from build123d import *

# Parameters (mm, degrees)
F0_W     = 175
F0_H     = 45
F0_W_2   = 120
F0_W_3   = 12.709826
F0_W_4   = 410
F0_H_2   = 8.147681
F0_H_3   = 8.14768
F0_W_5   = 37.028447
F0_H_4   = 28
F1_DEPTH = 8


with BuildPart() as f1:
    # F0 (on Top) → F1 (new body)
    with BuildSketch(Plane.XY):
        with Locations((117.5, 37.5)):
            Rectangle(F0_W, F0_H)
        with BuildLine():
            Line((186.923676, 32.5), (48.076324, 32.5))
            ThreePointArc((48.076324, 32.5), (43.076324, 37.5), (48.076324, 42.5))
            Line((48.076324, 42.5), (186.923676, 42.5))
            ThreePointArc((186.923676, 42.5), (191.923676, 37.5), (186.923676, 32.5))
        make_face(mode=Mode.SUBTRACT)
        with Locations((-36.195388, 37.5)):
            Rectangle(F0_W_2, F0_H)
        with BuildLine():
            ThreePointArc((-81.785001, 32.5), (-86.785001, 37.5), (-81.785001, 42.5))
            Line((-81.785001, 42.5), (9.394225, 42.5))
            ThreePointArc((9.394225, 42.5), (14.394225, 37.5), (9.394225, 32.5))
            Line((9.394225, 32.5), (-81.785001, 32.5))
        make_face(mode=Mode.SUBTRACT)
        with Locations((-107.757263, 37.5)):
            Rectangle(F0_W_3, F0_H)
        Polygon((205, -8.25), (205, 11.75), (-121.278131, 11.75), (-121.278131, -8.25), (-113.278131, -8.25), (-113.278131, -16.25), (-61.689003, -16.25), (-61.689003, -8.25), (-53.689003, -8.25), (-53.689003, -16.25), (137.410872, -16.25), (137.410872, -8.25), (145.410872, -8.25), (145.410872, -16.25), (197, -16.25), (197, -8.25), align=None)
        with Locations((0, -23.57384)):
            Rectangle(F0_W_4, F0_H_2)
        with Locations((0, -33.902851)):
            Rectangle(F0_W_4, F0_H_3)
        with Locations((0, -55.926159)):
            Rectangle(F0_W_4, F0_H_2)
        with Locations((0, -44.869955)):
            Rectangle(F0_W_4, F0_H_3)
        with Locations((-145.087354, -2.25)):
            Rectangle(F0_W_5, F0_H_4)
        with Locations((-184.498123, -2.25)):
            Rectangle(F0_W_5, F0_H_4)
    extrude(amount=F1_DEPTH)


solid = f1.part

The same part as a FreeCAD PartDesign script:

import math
import FreeCAD as App
import Part
import Sketcher
from FreeCAD import Vector

doc = App.newDocument("Part")
body = doc.addObject("PartDesign::Body", "Body")
body.AllowCompound = True

sketch1 = doc.addObject("Sketcher::SketchObject", "Sketch")
body.addObject(sketch1)
sketch1.AttachmentSupport = (doc.XY_Plane, [""])
sketch1.MapMode = "FlatFace"
sketch1.addGeometry([
    Part.LineSegment(Vector(30, 60, 0), Vector(30, 15, 0)),
    Part.LineSegment(Vector(30, 15, 0), Vector(205, 15, 0)),
    Part.LineSegment(Vector(205, 15, 0), Vector(205, 60, 0)),
    Part.LineSegment(Vector(205, 60, 0), Vector(30, 60, 0)),
    Part.ArcOfCircle(Part.Circle(Vector(186.923676, 37.5, 0), Vector(0, 0, 1), 5), math.radians(-90), math.radians(90)),
    Part.LineSegment(Vector(186.923676, 32.5, 0), Vector(48.076324, 32.5, 0)),
    Part.ArcOfCircle(Part.Circle(Vector(48.076324, 37.5, 0), Vector(0, 0, 1), 5), math.radians(90), math.radians(270)),
    Part.LineSegment(Vector(48.076324, 42.5, 0), Vector(186.923676, 42.5, 0)),
    Part.LineSegment(Vector(-96.195388, 60, 0), Vector(-96.195388, 15, 0)),
    Part.LineSegment(Vector(-96.195388, 15, 0), Vector(23.804612, 15, 0)),
    Part.LineSegment(Vector(23.804612, 15, 0), Vector(23.804612, 60, 0)),
    Part.LineSegment(Vector(23.804612, 60, 0), Vector(-96.195388, 60, 0)),
    Part.LineSegment(Vector(9.394225, 32.5, 0), Vector(-81.785001, 32.5, 0)),
    Part.ArcOfCircle(Part.Circle(Vector(-81.785001, 37.5, 0), Vector(0, 0, 1), 5), math.radians(90), math.radians(270)),
    Part.LineSegment(Vector(-81.785001, 42.5, 0), Vector(9.394225, 42.5, 0)),
    Part.ArcOfCircle(Part.Circle(Vector(9.394225, 37.5, 0), Vector(0, 0, 1), 5), math.radians(-90), math.radians(90)),
    Part.LineSegment(Vector(-114.112176, 60, 0), Vector(-114.112176, 15, 0)),
    Part.LineSegment(Vector(-114.112176, 15, 0), Vector(-101.40235, 15, 0)),
    Part.LineSegment(Vector(-101.40235, 15, 0), Vector(-101.40235, 60, 0)),
    Part.LineSegment(Vector(-101.40235, 60, 0), Vector(-114.112176, 60, 0)),
    Part.LineSegment(Vector(205, -8.25, 0), Vector(205, 11.75, 0)),
    Part.LineSegment(Vector(205, 11.75, 0), Vector(-121.278131, 11.75, 0)),
    Part.LineSegment(Vector(-121.278131, 11.75, 0), Vector(-121.278131, -8.25, 0)),
    Part.LineSegment(Vector(-121.278131, -8.25, 0), Vector(-113.278131, -8.25, 0)),
    Part.LineSegment(Vector(-113.278131, -8.25, 0), Vector(-113.278131, -16.25, 0)),
    Part.LineSegment(Vector(-113.278131, -16.25, 0), Vector(-61.689003, -16.25, 0)),
    Part.LineSegment(Vector(-61.689003, -16.25, 0), Vector(-61.689003, -8.25, 0)),
    Part.LineSegment(Vector(-61.689003, -8.25, 0), Vector(-53.689003, -8.25, 0)),
    Part.LineSegment(Vector(-53.689003, -8.25, 0), Vector(-53.689003, -16.25, 0)),
    Part.LineSegment(Vector(-53.689003, -16.25, 0), Vector(137.410872, -16.25, 0)),
    Part.LineSegment(Vector(137.410872, -16.25, 0), Vector(137.410872, -8.25, 0)),
    Part.LineSegment(Vector(137.410872, -8.25, 0), Vector(145.410872, -8.25, 0)),
    Part.LineSegment(Vector(145.410872, -8.25, 0), Vector(145.410872, -16.25, 0)),
    Part.LineSegment(Vector(145.410872, -16.25, 0), Vector(197, -16.25, 0)),
    Part.LineSegment(Vector(197, -16.25, 0), Vector(197, -8.25, 0)),
    Part.LineSegment(Vector(197, -8.25, 0), Vector(205, -8.25, 0)),
    Part.LineSegment(Vector(-205, -19.5, 0), Vector(-205, -27.64768, 0)),
    Part.LineSegment(Vector(-205, -27.64768, 0), Vector(205, -27.64768, 0)),
    Part.LineSegment(Vector(205, -27.64768, 0), Vector(205, -19.5, 0)),
    Part.LineSegment(Vector(205, -19.5, 0), Vector(-205, -19.5, 0)),
    Part.LineSegment(Vector(-205, -29.829011, 0), Vector(-205, -37.976691, 0)),
    Part.LineSegment(Vector(-205, -37.976691, 0), Vector(205, -37.976691, 0)),
    Part.LineSegment(Vector(205, -37.976691, 0), Vector(205, -29.829011, 0)),
    Part.LineSegment(Vector(205, -29.829011, 0), Vector(-205, -29.829011, 0)),
    Part.LineSegment(Vector(-205, -51.852319, 0), Vector(-205, -60, 0)),
    Part.LineSegment(Vector(-205, -60, 0), Vector(205, -60, 0)),
    Part.LineSegment(Vector(205, -60, 0), Vector(205, -51.852319, 0)),
    Part.LineSegment(Vector(205, -51.852319, 0), Vector(-205, -51.852319, 0)),
    Part.LineSegment(Vector(-205, -40.796115, 0), Vector(-205, -48.943795, 0)),
    Part.LineSegment(Vector(-205, -48.943795, 0), Vector(205, -48.943795, 0)),
    Part.LineSegment(Vector(205, -48.943795, 0), Vector(205, -40.796115, 0)),
    Part.LineSegment(Vector(205, -40.796115, 0), Vector(-205, -40.796115, 0)),
    Part.LineSegment(Vector(-163.601577, 11.75, 0), Vector(-163.601577, -16.25, 0)),
    Part.LineSegment(Vector(-163.601577, -16.25, 0), Vector(-126.573131, -16.25, 0)),
    Part.LineSegment(Vector(-126.573131, -16.25, 0), Vector(-126.573131, 11.75, 0)),
    Part.LineSegment(Vector(-126.573131, 11.75, 0), Vector(-163.601577, 11.75, 0)),
    Part.LineSegment(Vector(-203.012347, 11.75, 0), Vector(-203.012347, -16.25, 0)),
    Part.LineSegment(Vector(-203.012347, -16.25, 0), Vector(-165.9839, -16.25, 0)),
    Part.LineSegment(Vector(-165.9839, -16.25, 0), Vector(-165.9839, 11.75, 0)),
    Part.LineSegment(Vector(-165.9839, 11.75, 0), Vector(-203.012347, 11.75, 0)),
], False)
sketch1.addConstraint([
    Sketcher.Constraint("Coincident", 0, 2, 1, 1),
    Sketcher.Constraint("Coincident", 1, 2, 2, 1),
    Sketcher.Constraint("Coincident", 2, 2, 3, 1),
    Sketcher.Constraint("Coincident", 3, 2, 0, 1),
    Sketcher.Constraint("Tangent", 4, 1, 5, 1),
    Sketcher.Constraint("Tangent", 5, 2, 6, 2),
    Sketcher.Constraint("Tangent", 6, 1, 7, 1),
    Sketcher.Constraint("Tangent", 7, 2, 4, 2),
    Sketcher.Constraint("Coincident", 8, 2, 9, 1),
    Sketcher.Constraint("Coincident", 9, 2, 10, 1),
    Sketcher.Constraint("Coincident", 10, 2, 11, 1),
    Sketcher.Constraint("Coincident", 11, 2, 8, 1),
    Sketcher.Constraint("Tangent", 12, 2, 13, 2),
    Sketcher.Constraint("Tangent", 13, 1, 14, 1),
    Sketcher.Constraint("Tangent", 14, 2, 15, 2),
    Sketcher.Constraint("Tangent", 15, 1, 12, 1),
    Sketcher.Constraint("Coincident", 16, 2, 17, 1),
    Sketcher.Constraint("Coincident", 17, 2, 18, 1),
    Sketcher.Constraint("Coincident", 18, 2, 19, 1),
    Sketcher.Constraint("Coincident", 19, 2, 16, 1),
    Sketcher.Constraint("Coincident", 20, 2, 21, 1),
    Sketcher.Constraint("Coincident", 21, 2, 22, 1),
    Sketcher.Constraint("Coincident", 22, 2, 23, 1),
    Sketcher.Constraint("Coincident", 23, 2, 24, 1),
    Sketcher.Constraint("Coincident", 24, 2, 25, 1),
    Sketcher.Constraint("Coincident", 25, 2, 26, 1),
    Sketcher.Constraint("Coincident", 26, 2, 27, 1),
    Sketcher.Constraint("Coincident", 27, 2, 28, 1),
    Sketcher.Constraint("Coincident", 28, 2, 29, 1),
    Sketcher.Constraint("Coincident", 29, 2, 30, 1),
    Sketcher.Constraint("Coincident", 30, 2, 31, 1),
    Sketcher.Constraint("Coincident", 31, 2, 32, 1),
    Sketcher.Constraint("Coincident", 32, 2, 33, 1),
    Sketcher.Constraint("Coincident", 33, 2, 34, 1),
    Sketcher.Constraint("Coincident", 34, 2, 35, 1),
    Sketcher.Constraint("Coincident", 35, 2, 20, 1),
    Sketcher.Constraint("Coincident", 36, 2, 37, 1),
    Sketcher.Constraint("Coincident", 37, 2, 38, 1),
    Sketcher.Constraint("Coincident", 38, 2, 39, 1),
    Sketcher.Constraint("Coincident", 39, 2, 36, 1),
    Sketcher.Constraint("Coincident", 40, 2, 41, 1),
    Sketcher.Constraint("Coincident", 41, 2, 42, 1),
    Sketcher.Constraint("Coincident", 42, 2, 43, 1),
    Sketcher.Constraint("Coincident", 43, 2, 40, 1),
    Sketcher.Constraint("Coincident", 44, 2, 45, 1),
    Sketcher.Constraint("Coincident", 45, 2, 46, 1),
    Sketcher.Constraint("Coincident", 46, 2, 47, 1),
    Sketcher.Constraint("Coincident", 47, 2, 44, 1),
    Sketcher.Constraint("Coincident", 48, 2, 49, 1),
    Sketcher.Constraint("Coincident", 49, 2, 50, 1),
    Sketcher.Constraint("Coincident", 50, 2, 51, 1),
    Sketcher.Constraint("Coincident", 51, 2, 48, 1),
    Sketcher.Constraint("Coincident", 52, 2, 53, 1),
    Sketcher.Constraint("Coincident", 53, 2, 54, 1),
    Sketcher.Constraint("Coincident", 54, 2, 55, 1),
    Sketcher.Constraint("Coincident", 55, 2, 52, 1),
    Sketcher.Constraint("Coincident", 56, 2, 57, 1),
    Sketcher.Constraint("Coincident", 57, 2, 58, 1),
    Sketcher.Constraint("Coincident", 58, 2, 59, 1),
    Sketcher.Constraint("Coincident", 59, 2, 56, 1),
    Sketcher.Constraint("Vertical", 0),
    Sketcher.Constraint("Horizontal", 1),
    Sketcher.Constraint("Vertical", 2),
    Sketcher.Constraint("Horizontal", 3),
    Sketcher.Constraint("Horizontal", 5),
    Sketcher.Constraint("Horizontal", 7),
    Sketcher.Constraint("Vertical", 8),
    Sketcher.Constraint("Horizontal", 9),
    Sketcher.Constraint("Vertical", 10),
    Sketcher.Constraint("Horizontal", 11),
    Sketcher.Constraint("Horizontal", 12),
    Sketcher.Constraint("Horizontal", 14),
    Sketcher.Constraint("Vertical", 16),
    Sketcher.Constraint("Horizontal", 17),
    Sketcher.Constraint("Vertical", 18),
    Sketcher.Constraint("Horizontal", 19),
    Sketcher.Constraint("Vertical", 20),
    Sketcher.Constraint("Horizontal", 21),
    Sketcher.Constraint("Vertical", 22),
    Sketcher.Constraint("Horizontal", 23),
    Sketcher.Constraint("Vertical", 24),
    Sketcher.Constraint("Horizontal", 25),
    Sketcher.Constraint("Vertical", 26),
    Sketcher.Constraint("Horizontal", 27),
    Sketcher.Constraint("Vertical", 28),
    Sketcher.Constraint("Horizontal", 29),
    Sketcher.Constraint("Vertical", 30),
    Sketcher.Constraint("Horizontal", 31),
    Sketcher.Constraint("Vertical", 32),
    Sketcher.Constraint("Horizontal", 33),
    Sketcher.Constraint("Vertical", 34),
    Sketcher.Constraint("Horizontal", 35),
    Sketcher.Constraint("Vertical", 36),
    Sketcher.Constraint("Horizontal", 37),
    Sketcher.Constraint("Vertical", 38),
    Sketcher.Constraint("Horizontal", 39),
    Sketcher.Constraint("Vertical", 40),
    Sketcher.Constraint("Horizontal", 41),
    Sketcher.Constraint("Vertical", 42),
    Sketcher.Constraint("Horizontal", 43),
    Sketcher.Constraint("Vertical", 44),
    Sketcher.Constraint("Horizontal", 45),
    Sketcher.Constraint("Vertical", 46),
    Sketcher.Constraint("Horizontal", 47),
    Sketcher.Constraint("Vertical", 48),
    Sketcher.Constraint("Horizontal", 49),
    Sketcher.Constraint("Vertical", 50),
    Sketcher.Constraint("Horizontal", 51),
    Sketcher.Constraint("Vertical", 52),
    Sketcher.Constraint("Horizontal", 53),
    Sketcher.Constraint("Vertical", 54),
    Sketcher.Constraint("Horizontal", 55),
    Sketcher.Constraint("Vertical", 56),
    Sketcher.Constraint("Horizontal", 57),
    Sketcher.Constraint("Vertical", 58),
    Sketcher.Constraint("Horizontal", 59),
    Sketcher.Constraint("Equal", 6, 13),
    Sketcher.Constraint("Symmetric", 2, 2, 44, 2, -1, 1),
    Sketcher.Constraint("Horizontal", 6, 3, 13, 3),
    Sketcher.Constraint("Horizontal", 1, 2, 8, 2),
    Sketcher.Constraint("Horizontal", 3, 2, 10, 2),
    Sketcher.Constraint("Horizontal", 9, 2, 16, 2),
    Sketcher.Constraint("Horizontal", 11, 2, 18, 2),
    Sketcher.Constraint("Horizontal", 23, 2, 26, 2),
    Sketcher.Constraint("Horizontal", 25, 2, 28, 2),
    Sketcher.Constraint("Horizontal", 27, 2, 30, 2),
    Sketcher.Constraint("Horizontal", 29, 2, 32, 2),
    Sketcher.Constraint("Horizontal", 31, 2, 34, 2),
    Sketcher.Constraint("Horizontal", 33, 2, 52, 2),
    Sketcher.Constraint("Horizontal", 21, 2, 54, 2),
    Sketcher.Constraint("Horizontal", 53, 2, 56, 2),
    Sketcher.Constraint("Horizontal", 55, 2, 58, 2),
    Sketcher.Constraint("Vertical", 2, 2, 20, 2),
    Sketcher.Constraint("Vertical", 35, 2, 37, 2),
    Sketcher.Constraint("Vertical", 39, 2, 40, 2),
    Sketcher.Constraint("Vertical", 38, 2, 41, 2),
    Sketcher.Constraint("Vertical", 43, 2, 44, 2),
    Sketcher.Constraint("Vertical", 42, 2, 45, 2),
    Sketcher.Constraint("Vertical", 47, 2, 48, 2),
    Sketcher.Constraint("Vertical", 46, 2, 49, 2),
    Sketcher.Constraint("Equal", 23, 27),
    Sketcher.Constraint("Equal", 27, 31),
    Sketcher.Constraint("Equal", 25, 33),
    Sketcher.Constraint("Equal", 31, 35),
    Sketcher.Constraint("Equal", 55, 57),
    Sketcher.Constraint("Equal", 35, 24),
    Sketcher.Constraint("Equal", 38, 40),
    Sketcher.Constraint("Equal", 42, 44),
    Sketcher.Constraint("Equal", 46, 48),
    Sketcher.Constraint("Radius", 4, 5.0),
    Sketcher.Constraint("DistanceX", 1, 1, 1, 2, 175.0),
    Sketcher.Constraint("DistanceX", 9, 1, 9, 2, 120.0),
    Sketcher.Constraint("DistanceX", 23, 1, 23, 2, 8.0),
    Sketcher.Constraint("DistanceX", 37, 1, 37, 2, 410.0),
    Sketcher.Constraint("DistanceY", 0, 2, 0, 1, 45.0),
    Sketcher.Constraint("DistanceY", 20, 1, 20, 2, 20.0),
    Sketcher.Constraint("DistanceY", -1, 1, 0, 2, 15.0),
    Sketcher.Constraint("DistanceY", -1, 1, 4, 3, 37.5),
    Sketcher.Constraint("DistanceY", 38, 2, -1, 1, 19.5),
    Sketcher.Constraint("DistanceY", -1, 1, 20, 2, 11.75),
    Sketcher.Constraint("DistanceX", 13, 3, -1, 1, 81.785001),
    Sketcher.Constraint("DistanceX", 5, 2, 5, 1, 138.847352),
    Sketcher.Constraint("DistanceX", 21, 2, 21, 1, 326.278131),
    Sketcher.Constraint("DistanceX", 25, 1, 25, 2, 51.589128),
    Sketcher.Constraint("DistanceY", 36, 2, 36, 1, 8.147681),
    Sketcher.Constraint("DistanceX", 57, 2, -1, 1, 165.9839),
    Sketcher.Constraint("DistanceX", 12, 2, 12, 1, 91.179226),
    Sketcher.Constraint("DistanceX", 17, 1, 17, 2, 12.709826),
    Sketcher.Constraint("DistanceX", 53, 1, 53, 2, 37.028447),
    Sketcher.Constraint("DistanceX", -1, 1, 9, 2, 23.804612),
    Sketcher.Constraint("DistanceX", 17, 2, -1, 1, 101.40235),
    Sketcher.Constraint("DistanceY", 40, 2, -1, 1, 37.976691),
    Sketcher.Constraint("DistanceX", 53, 2, -1, 1, 126.573131),
    Sketcher.Constraint("DistanceX", -1, 1, 4, 3, 186.923676),
    Sketcher.Constraint("DistanceY", 48, 2, -1, 1, 48.943795),
])
pad1 = doc.addObject("PartDesign::Pad", "Pad")
body.addObject(pad1)
pad1.Profile = sketch1
pad1.Length = 8

doc.recompute()
